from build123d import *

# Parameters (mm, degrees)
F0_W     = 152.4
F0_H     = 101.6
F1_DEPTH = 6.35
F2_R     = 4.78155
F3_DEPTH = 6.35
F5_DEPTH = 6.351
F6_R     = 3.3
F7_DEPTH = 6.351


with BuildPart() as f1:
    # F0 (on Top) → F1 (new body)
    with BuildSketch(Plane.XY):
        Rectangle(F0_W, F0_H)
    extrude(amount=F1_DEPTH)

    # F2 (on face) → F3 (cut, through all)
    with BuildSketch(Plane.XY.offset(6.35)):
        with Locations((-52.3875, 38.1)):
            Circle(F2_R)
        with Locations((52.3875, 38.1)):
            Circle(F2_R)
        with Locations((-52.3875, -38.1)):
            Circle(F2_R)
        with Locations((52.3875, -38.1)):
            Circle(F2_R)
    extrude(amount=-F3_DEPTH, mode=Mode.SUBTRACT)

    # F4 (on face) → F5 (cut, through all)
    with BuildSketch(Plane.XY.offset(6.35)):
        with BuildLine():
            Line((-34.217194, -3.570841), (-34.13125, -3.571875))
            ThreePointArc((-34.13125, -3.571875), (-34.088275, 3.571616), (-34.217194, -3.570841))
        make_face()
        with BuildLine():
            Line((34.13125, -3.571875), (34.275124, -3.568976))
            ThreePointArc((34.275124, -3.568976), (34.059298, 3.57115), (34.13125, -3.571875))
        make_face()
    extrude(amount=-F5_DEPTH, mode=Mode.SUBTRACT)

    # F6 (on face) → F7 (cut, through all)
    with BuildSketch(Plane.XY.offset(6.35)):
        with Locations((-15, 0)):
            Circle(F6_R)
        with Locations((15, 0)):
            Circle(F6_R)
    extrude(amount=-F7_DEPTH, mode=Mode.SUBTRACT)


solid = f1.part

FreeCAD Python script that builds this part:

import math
import FreeCAD as App
import Part
import Sketcher

V = App.Vector
Q = App.Units.Quantity


def add_polygon(sketch, points):
    """Adds a closed chain of lines whose ends are joined by coincident constraints."""
    first, n = sketch.GeometryCount, len(points)
    for a, b in zip(points, points[1:] + points[:1]):
        sketch.addGeometry(Part.LineSegment(App.Vector(*a, 0), App.Vector(*b, 0)), False)
    for i in range(n):
        sketch.addConstraint(Sketcher.Constraint("Coincident", first + i, 2, first + (i + 1) % n, 1))

doc = App.newDocument("Part")
body = doc.addObject("PartDesign::Body", "Body")

sketch1 = body.newObject("Sketcher::SketchObject", "Sketch")
sketch1.AttachmentSupport = (doc.getObject("XY_Plane"), [""])
sketch1.MapMode = "FlatFace"
add_polygon(sketch1, [(-76, 51), (-76, -51), (76, -51), (76, 51)])
sketch1.addConstraint([
    Sketcher.Constraint("Vertical", 0),
    Sketcher.Constraint("Horizontal", 1),
    Sketcher.Constraint("Vertical", 2),
    Sketcher.Constraint("Horizontal", 3),
    Sketcher.Constraint("Symmetric", 0, 2, 2, 2, -1, 1),
    Sketcher.Constraint("DistanceX", 1, 1, 1, 2, Q("6 in")),
    Sketcher.Constraint("DistanceY", 0, 2, 0, 1, Q("4 in")),
])
pad1 = body.newObject("PartDesign::Pad", "Pad")
pad1.Profile = sketch1
pad1.Length = Q("0.25 in")

sketch2 = body.newObject("Sketcher::SketchObject", "Sketch001")
sketch2.AttachmentSupport = (doc.getObject("XY_Plane"), [""])
sketch2.MapMode = "FlatFace"
sketch2.AttachmentOffset = App.Placement(V(0, 0, 0.25 * 25.4), App.Rotation())
sketch2.addGeometry([
    Part.Circle(V(-52.4, 38.1, 0), V(0, 0, 1), 4.8),
    Part.Circle(V(52.4, 38.1, 0), V(0, 0, 1), 4.8),
    Part.Circle(V(-52.4, -38.1, 0), V(0, 0, 1), 4.8),
    Part.Circle(V(52.4, -38.1, 0), V(0, 0, 1), 4.8),
], False)
sketch2.addConstraint([
    Sketcher.Constraint("Equal", 0, 1),
    Sketcher.Constraint("Equal", 1, 2),
    Sketcher.Constraint("Equal", 2, 3),
    Sketcher.Constraint("Symmetric", 1, 3, 2, 3, -1, 1),
    Sketcher.Constraint("Symmetric", 0, 3, 3, 3, -1, 1),
    Sketcher.Constraint("Symmetric", 0, 3, 1, 3, -2),
    Sketcher.Constraint("DistanceY", 2, 3, 0, 3, Q("3 in")),
    Sketcher.Constraint("Diameter", 0, Q("0.3765 in")),
    Sketcher.Constraint("DistanceX", 0, 3, -1, 1, Q("2.0625 in")),
])
pocket1 = body.newObject("PartDesign::Pocket", "Pocket")
pocket1.Profile = sketch2
pocket1.Type = "ThroughAll"

sketch3 = body.newObject("Sketcher::SketchObject", "Sketch002")
sketch3.AttachmentSupport = (doc.getObject("XY_Plane"), [""])
sketch3.MapMode = "FlatFace"
sketch3.AttachmentOffset = App.Placement(V(0, 0, 0.25 * 25.4), App.Rotation())
sketch3.addGeometry([
    Part.LineSegment(V(-34.22, -3.57, 0), V(-34.13, -3.57, 0)),
    Part.ArcOfCircle(Part.Circle(V(-34.13, 0, 0), V(0, 0, 1), 3.57), math.radians(-90), math.radians(269)),
    Part.LineSegment(V(34.13, -3.57, 0), V(34.28, -3.57, 0)),
    Part.ArcOfCircle(Part.Circle(V(34.13, 0, 0), V(0, 0, 1), 3.57), math.radians(-88), math.radians(270)),
], False)
sketch3.addConstraint([
    Sketcher.Constraint("Coincident", 0, 1, 1, 2),
    Sketcher.Constraint("Coincident", 1, 1, 0, 2),
    Sketcher.Constraint("Coincident", 2, 1, 3, 2),
    Sketcher.Constraint("Coincident", 3, 1, 2, 2),
    Sketcher.Constraint("Equal", 1, 3),
    Sketcher.Constraint("Symmetric", 1, 1, 2, 1, -2),
    Sketcher.Constraint("PointOnObject", 1, 3, -1),
    Sketcher.Constraint("Radius", 1, Q("0.140625 in")),
    Sketcher.Constraint("DistanceX", 1, 1, -1, 1, Q("1.34375 in")),
    Sketcher.Constraint("DistanceX", 1, 3, 3, 3, Q("2.6875 in")),
    Sketcher.Constraint("DistanceX", 1, 3, 2, 1, Q("2.6875002 in")),
    Sketcher.Constraint("DistanceY", 2, 1, 3, 1, Q("0.002899 mm")),
    Sketcher.Constraint("Distance", 0, Q("0.08595 mm")),
])
pocket2 = body.newObject("PartDesign::Pocket", "Pocket001")
pocket2.Profile = sketch3
pocket2.Type = "ThroughAll"

sketch4 = body.newObject("Sketcher::SketchObject", "Sketch003")
sketch4.AttachmentSupport = (doc.getObject("XY_Plane"), [""])
sketch4.MapMode = "FlatFace"
sketch4.AttachmentOffset = App.Placement(V(0, 0, 0.25 * 25.4), App.Rotation())
sketch4.addGeometry([
    Part.Circle(V(-15, 0, 0), V(0, 0, 1), 3.3),
    Part.Circle(V(15, 0, 0), V(0, 0, 1), 3.3),
], False)
sketch4.addConstraint([
    Sketcher.Constraint("Equal", 0, 1),
    Sketcher.Constraint("Symmetric", 0, 3, 1, 3, -1, 1),
    Sketcher.Constraint("PointOnObject", 0, 3, -1),
    Sketcher.Constraint("Diameter", 0, Q("6.6 mm")),
    Sketcher.Constraint("DistanceX", 0, 3, -1, 1, Q("15 mm")),
])
pocket3 = body.newObject("PartDesign::Pocket", "Pocket002")
pocket3.Profile = sketch4
pocket3.Type = "ThroughAll"

doc.recompute()
